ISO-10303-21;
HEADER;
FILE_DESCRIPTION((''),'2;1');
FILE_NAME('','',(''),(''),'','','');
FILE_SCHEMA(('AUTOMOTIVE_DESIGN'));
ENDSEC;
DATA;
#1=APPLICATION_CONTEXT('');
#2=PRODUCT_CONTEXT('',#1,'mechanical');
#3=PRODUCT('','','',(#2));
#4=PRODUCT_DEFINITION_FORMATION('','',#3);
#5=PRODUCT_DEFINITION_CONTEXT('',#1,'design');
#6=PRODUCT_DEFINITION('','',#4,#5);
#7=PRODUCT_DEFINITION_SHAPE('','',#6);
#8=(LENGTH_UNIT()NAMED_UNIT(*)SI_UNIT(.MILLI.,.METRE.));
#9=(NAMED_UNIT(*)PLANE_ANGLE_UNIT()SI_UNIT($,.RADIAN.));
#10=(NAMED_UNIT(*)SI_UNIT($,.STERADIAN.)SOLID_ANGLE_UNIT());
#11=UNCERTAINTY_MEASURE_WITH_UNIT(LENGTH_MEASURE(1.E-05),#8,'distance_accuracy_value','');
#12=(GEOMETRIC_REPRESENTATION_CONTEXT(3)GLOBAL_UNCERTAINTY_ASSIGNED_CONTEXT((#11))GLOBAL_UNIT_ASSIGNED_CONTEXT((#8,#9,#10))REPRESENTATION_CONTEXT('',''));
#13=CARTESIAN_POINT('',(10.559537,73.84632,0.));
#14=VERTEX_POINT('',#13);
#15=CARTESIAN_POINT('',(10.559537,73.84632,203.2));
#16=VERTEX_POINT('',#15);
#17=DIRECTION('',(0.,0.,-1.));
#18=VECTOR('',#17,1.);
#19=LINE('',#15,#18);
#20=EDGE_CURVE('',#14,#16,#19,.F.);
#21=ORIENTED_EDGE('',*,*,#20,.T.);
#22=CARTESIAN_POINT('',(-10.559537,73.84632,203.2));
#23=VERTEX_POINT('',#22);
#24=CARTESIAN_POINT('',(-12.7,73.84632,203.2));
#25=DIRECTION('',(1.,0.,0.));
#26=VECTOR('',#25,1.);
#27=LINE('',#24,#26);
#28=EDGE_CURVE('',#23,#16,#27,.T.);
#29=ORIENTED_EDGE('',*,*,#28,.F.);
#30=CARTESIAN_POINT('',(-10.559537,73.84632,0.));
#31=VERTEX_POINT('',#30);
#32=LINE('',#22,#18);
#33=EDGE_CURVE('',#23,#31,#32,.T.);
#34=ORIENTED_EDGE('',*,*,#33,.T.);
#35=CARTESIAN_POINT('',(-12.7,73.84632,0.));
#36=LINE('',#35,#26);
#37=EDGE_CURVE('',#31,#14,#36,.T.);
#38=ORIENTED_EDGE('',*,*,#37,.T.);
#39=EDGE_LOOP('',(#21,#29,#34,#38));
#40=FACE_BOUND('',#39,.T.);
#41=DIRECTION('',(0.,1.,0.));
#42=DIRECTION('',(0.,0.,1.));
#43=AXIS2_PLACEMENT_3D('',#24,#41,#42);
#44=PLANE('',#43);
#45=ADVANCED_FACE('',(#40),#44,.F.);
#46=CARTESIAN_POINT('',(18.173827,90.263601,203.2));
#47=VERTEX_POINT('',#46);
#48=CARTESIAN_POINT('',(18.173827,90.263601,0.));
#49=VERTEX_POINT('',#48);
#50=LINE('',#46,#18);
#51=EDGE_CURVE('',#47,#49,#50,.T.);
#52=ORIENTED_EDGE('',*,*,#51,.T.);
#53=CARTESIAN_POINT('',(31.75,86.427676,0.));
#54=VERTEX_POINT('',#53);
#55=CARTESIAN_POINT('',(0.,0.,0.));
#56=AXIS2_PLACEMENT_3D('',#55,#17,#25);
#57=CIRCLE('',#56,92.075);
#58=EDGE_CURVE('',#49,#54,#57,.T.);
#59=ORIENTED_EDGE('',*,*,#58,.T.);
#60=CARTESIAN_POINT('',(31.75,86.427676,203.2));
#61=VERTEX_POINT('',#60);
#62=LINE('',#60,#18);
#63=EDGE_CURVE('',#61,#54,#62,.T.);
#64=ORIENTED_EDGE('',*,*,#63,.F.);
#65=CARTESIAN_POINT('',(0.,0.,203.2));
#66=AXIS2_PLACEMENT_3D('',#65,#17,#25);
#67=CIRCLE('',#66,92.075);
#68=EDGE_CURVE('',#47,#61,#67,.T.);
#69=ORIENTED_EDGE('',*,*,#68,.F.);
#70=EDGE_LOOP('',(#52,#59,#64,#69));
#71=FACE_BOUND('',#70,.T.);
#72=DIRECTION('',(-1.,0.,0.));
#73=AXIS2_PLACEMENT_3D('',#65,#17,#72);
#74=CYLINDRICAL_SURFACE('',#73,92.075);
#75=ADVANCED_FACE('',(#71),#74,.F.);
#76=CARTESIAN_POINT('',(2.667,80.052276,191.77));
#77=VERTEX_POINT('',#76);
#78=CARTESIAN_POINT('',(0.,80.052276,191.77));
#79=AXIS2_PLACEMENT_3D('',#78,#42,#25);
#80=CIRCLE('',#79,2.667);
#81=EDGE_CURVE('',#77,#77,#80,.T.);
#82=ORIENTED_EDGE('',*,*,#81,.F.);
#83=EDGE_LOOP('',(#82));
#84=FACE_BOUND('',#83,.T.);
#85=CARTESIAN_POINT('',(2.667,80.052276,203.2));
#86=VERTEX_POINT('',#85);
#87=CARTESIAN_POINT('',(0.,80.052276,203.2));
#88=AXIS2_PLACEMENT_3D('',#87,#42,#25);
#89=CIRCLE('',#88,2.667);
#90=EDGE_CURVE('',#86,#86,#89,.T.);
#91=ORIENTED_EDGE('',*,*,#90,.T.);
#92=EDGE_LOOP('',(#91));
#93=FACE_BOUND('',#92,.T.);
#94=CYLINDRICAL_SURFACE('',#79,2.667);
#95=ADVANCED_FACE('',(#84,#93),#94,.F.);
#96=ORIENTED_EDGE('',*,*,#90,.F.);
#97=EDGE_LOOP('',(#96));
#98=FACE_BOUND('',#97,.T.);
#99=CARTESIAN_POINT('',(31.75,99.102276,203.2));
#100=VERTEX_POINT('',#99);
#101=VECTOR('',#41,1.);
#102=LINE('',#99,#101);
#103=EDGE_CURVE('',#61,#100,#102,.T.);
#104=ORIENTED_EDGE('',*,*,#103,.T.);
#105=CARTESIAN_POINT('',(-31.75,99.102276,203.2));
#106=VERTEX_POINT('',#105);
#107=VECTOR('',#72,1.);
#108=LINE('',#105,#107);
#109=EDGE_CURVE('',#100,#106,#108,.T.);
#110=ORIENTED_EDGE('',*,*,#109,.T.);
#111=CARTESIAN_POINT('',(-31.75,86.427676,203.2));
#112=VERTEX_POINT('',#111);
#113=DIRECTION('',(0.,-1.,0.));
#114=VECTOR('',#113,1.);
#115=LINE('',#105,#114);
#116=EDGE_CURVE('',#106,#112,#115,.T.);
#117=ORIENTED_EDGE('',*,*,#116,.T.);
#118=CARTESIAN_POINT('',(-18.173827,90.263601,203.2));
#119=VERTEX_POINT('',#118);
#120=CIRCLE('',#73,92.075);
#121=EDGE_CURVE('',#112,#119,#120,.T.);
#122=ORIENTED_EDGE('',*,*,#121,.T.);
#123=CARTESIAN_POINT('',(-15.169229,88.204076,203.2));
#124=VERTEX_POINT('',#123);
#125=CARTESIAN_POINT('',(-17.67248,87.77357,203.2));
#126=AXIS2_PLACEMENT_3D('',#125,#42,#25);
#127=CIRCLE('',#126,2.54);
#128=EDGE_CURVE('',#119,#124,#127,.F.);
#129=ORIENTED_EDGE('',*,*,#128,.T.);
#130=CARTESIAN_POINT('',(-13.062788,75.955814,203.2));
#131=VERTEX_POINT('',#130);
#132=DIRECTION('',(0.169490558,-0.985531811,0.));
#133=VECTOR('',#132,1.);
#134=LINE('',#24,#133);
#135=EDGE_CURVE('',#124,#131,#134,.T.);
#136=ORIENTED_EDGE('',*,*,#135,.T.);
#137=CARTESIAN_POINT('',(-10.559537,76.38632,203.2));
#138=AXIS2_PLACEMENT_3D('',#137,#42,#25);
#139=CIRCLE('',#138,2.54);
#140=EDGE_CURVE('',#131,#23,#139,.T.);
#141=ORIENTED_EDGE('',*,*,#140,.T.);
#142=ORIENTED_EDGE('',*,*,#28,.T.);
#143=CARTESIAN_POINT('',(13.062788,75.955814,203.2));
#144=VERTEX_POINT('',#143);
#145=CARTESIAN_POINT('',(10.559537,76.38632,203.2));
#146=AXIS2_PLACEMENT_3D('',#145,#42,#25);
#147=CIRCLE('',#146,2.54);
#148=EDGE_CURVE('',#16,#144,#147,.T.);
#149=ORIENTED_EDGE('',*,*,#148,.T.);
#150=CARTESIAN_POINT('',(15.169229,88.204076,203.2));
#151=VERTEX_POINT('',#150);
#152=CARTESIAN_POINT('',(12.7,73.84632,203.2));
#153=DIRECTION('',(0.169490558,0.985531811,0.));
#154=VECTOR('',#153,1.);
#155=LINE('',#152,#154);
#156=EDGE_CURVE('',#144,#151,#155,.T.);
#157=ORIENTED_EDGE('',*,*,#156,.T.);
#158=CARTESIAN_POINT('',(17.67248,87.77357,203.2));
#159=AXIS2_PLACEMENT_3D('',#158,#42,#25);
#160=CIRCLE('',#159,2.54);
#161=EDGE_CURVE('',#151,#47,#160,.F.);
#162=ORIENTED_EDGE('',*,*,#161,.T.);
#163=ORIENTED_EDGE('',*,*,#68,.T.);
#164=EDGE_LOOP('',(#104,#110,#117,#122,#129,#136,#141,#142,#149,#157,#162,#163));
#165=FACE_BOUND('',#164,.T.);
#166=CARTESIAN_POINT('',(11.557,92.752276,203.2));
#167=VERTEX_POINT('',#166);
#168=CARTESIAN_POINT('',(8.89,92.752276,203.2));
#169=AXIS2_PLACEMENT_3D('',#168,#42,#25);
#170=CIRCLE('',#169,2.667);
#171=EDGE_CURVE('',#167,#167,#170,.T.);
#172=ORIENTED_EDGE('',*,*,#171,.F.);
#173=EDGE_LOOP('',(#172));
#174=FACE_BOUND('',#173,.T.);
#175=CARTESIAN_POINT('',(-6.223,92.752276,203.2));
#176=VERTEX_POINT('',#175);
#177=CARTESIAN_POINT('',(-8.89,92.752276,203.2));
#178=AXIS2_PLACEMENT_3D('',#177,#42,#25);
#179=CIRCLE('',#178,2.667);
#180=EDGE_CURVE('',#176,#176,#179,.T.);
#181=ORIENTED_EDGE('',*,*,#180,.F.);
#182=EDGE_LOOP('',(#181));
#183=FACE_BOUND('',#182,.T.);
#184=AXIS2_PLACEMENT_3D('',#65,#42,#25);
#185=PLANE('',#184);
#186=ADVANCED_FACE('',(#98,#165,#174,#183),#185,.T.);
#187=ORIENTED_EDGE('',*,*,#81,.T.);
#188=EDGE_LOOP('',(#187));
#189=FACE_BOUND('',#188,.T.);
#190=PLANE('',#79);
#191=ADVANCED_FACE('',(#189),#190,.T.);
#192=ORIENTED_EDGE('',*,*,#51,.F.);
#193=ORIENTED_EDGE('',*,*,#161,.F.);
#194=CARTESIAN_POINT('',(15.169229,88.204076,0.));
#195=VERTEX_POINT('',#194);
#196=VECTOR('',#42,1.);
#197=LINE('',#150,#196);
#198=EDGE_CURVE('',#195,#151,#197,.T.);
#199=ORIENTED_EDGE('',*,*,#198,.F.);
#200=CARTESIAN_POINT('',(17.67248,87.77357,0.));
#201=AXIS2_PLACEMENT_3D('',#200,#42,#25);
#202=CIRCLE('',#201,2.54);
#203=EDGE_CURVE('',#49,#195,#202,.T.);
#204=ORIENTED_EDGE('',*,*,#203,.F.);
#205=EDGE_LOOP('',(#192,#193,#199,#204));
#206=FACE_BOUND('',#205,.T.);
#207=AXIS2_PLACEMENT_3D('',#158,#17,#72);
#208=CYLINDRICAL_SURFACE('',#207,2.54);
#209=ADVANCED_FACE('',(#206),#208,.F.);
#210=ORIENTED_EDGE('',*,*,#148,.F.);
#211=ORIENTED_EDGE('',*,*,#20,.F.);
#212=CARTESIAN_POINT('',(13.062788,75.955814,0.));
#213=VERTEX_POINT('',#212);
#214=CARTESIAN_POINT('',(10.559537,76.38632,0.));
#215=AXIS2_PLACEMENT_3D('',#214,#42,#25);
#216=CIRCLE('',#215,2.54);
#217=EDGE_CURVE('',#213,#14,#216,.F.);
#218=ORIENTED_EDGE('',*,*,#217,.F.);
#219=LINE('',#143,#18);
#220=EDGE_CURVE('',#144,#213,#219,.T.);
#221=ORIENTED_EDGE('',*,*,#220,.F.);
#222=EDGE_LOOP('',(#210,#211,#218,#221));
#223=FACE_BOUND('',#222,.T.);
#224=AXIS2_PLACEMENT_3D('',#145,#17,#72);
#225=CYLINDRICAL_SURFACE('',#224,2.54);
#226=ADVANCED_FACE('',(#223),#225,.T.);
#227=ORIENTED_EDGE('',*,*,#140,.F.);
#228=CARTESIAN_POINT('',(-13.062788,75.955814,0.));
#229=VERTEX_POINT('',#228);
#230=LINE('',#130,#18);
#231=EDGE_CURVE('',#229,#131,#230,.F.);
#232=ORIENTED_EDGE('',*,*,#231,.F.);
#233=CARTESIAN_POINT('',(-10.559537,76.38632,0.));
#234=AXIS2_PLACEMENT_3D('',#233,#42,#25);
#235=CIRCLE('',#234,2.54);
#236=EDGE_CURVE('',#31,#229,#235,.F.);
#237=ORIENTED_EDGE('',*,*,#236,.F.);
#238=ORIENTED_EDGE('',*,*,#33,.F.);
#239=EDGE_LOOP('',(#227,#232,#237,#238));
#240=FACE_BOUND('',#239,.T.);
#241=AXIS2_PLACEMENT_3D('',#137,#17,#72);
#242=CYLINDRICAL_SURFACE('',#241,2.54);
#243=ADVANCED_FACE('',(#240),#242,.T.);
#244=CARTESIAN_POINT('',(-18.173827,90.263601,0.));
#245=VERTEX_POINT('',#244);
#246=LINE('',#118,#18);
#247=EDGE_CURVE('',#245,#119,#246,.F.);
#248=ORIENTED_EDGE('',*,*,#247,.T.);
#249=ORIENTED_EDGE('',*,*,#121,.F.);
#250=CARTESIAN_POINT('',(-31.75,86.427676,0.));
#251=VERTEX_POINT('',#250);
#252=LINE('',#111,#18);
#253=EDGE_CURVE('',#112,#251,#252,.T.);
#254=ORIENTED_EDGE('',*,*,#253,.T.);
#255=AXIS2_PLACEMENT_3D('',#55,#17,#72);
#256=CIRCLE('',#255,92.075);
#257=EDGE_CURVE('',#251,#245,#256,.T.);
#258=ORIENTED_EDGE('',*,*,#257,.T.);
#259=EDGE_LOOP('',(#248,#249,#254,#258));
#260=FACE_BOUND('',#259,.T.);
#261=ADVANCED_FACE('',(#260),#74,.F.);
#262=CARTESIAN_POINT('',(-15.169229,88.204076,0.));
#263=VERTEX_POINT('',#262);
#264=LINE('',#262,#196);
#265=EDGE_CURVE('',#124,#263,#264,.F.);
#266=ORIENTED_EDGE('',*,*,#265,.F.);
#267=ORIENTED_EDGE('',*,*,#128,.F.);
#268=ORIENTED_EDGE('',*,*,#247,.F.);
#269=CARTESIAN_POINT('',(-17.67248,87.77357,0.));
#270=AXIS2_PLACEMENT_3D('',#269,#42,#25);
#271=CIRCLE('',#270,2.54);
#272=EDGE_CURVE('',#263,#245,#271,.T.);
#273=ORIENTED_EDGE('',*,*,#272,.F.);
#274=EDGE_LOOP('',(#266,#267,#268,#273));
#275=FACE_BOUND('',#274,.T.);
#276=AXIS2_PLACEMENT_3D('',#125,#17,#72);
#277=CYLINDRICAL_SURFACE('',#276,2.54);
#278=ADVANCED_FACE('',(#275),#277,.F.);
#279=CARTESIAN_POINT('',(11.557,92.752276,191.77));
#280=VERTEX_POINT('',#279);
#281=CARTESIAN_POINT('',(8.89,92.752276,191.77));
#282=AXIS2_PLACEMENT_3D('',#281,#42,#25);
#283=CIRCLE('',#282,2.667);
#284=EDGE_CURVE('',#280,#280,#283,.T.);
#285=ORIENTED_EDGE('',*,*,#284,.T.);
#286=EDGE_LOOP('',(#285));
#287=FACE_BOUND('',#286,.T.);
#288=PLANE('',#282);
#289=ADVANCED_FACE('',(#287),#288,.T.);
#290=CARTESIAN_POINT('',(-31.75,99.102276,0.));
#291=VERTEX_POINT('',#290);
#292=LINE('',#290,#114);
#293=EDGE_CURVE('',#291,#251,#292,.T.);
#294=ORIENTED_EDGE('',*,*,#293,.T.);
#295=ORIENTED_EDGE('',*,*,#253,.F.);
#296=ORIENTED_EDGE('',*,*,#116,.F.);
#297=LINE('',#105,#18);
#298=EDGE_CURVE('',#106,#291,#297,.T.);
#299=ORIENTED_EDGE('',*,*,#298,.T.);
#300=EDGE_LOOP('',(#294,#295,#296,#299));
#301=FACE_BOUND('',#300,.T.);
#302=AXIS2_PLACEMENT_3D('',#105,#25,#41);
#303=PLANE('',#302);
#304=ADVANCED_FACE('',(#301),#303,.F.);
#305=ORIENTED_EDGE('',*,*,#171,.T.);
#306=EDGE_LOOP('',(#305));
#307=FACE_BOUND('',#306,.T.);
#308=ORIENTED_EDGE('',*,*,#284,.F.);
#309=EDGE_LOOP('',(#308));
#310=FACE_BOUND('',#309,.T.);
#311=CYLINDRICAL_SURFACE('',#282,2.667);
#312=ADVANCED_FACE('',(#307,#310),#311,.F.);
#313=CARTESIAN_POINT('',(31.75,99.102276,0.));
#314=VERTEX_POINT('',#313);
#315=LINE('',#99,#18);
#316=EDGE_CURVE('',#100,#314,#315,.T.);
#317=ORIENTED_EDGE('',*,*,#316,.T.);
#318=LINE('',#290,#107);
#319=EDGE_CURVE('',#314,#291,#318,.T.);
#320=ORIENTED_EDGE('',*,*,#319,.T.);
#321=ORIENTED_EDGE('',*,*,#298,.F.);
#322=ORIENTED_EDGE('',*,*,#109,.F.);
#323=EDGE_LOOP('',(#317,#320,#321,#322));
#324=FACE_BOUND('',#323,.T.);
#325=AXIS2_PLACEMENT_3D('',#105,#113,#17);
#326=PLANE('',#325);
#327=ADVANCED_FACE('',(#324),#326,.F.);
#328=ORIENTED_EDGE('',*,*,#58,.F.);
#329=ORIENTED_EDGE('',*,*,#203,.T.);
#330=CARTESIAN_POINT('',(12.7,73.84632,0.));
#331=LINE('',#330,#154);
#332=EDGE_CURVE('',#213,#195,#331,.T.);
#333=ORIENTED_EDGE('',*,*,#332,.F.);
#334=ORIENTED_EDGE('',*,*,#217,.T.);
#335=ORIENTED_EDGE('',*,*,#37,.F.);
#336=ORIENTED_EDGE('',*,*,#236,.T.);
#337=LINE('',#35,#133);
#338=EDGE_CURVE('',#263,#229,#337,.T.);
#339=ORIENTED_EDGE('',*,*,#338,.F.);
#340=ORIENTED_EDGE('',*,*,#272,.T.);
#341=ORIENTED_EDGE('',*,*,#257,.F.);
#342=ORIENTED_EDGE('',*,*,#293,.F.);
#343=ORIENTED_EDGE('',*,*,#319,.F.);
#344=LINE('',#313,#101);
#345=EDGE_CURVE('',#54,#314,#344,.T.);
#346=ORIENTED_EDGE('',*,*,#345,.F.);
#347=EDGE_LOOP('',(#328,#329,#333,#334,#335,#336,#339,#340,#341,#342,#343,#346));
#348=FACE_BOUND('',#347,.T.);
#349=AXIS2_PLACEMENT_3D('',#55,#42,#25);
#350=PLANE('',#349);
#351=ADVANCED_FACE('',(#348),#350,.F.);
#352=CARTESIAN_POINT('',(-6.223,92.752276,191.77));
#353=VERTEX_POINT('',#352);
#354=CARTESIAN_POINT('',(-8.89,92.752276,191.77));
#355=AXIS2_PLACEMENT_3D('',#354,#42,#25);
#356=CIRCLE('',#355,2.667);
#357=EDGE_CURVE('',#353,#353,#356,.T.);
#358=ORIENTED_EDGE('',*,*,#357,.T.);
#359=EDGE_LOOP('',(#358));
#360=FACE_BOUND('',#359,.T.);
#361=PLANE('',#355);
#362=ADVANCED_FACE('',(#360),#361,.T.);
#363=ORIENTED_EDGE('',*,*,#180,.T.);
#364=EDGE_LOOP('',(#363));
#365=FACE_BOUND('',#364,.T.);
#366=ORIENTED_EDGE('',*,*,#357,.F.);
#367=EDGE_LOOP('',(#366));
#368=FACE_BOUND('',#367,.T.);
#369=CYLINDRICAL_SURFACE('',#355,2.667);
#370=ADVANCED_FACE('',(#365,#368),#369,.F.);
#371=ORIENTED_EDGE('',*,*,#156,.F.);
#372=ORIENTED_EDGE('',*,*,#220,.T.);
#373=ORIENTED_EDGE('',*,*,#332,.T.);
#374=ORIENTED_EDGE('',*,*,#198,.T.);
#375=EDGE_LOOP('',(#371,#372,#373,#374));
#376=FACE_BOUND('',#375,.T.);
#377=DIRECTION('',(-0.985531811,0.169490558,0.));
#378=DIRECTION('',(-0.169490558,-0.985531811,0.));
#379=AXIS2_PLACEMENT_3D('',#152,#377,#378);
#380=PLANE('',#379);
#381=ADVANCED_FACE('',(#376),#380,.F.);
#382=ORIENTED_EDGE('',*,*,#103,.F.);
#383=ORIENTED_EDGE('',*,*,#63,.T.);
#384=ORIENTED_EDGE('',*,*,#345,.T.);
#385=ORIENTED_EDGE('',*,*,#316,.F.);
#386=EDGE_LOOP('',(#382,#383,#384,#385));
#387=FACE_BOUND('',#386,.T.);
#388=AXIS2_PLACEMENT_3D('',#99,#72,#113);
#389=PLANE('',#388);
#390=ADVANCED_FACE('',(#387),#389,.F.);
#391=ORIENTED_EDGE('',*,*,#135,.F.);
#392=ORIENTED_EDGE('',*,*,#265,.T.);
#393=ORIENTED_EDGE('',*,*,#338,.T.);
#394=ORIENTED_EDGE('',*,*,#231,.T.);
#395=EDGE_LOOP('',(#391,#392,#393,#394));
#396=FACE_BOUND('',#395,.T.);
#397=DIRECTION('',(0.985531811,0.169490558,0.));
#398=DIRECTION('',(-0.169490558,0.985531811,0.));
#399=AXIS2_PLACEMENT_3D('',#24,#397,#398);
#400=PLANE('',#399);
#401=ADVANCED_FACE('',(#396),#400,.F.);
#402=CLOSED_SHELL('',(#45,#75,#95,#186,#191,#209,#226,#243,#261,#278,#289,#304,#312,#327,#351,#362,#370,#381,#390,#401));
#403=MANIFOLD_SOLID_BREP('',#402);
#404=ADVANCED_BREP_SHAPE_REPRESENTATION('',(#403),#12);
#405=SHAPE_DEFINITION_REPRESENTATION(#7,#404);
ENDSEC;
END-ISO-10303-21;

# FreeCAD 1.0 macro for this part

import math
import FreeCAD as App
import Part
import Sketcher
from FreeCAD import Vector
Q = App.Units.Quantity


def edges_at(feature, points):
    """Names of the edges that pass closest to the given points."""
    edges = feature.Shape.Edges
    near = lambda p: min(range(len(edges)), key=lambda i: edges[i].distToShape(Part.Vertex(*p))[0])
    return sorted({f"Edge{near(p) + 1}" for p in points})

doc = App.newDocument("Part")
body = doc.addObject("PartDesign::Body", "Body")

# Sketch on XY plane
sketch1 = body.newObject("Sketcher::SketchObject", "Sketch")
sketch1.AttachmentSupport = (doc.getObject("XY_Plane"), [""])
sketch1.MapMode = "FlatFace"
sketch1.addGeometry([
    Part.LineSegment(Vector(-12.7, 73.84632, 0), Vector(12.7, 73.84632, 0)),  # 0
    Part.LineSegment(Vector(12.7, 73.84632, 0), Vector(15.605843, 90.742842, 0)),  # 1
    Part.ArcOfCircle(Part.Circle(Vector(0, 0, 0), Vector(0, 0, 1), 92.075), math.radians(69.828729), math.radians(80.2418)),  # 2
    Part.LineSegment(Vector(31.75, 86.427676, 0), Vector(31.75, 99.102276, 0)),  # 3
    Part.LineSegment(Vector(31.75, 99.102276, 0), Vector(-31.75, 99.102276, 0)),  # 4
    Part.LineSegment(Vector(-31.75, 99.102276, 0), Vector(-31.75, 86.427676, 0)),  # 5
    Part.ArcOfCircle(Part.Circle(Vector(0, 0, 0), Vector(0, 0, 1), 92.075), math.radians(99.7582), math.radians(110.171271)),  # 6
    Part.LineSegment(Vector(-15.605843, 90.742842, 0), Vector(-12.7, 73.84632, 0)),  # 7
], False)
sketch1.addConstraint([
    Sketcher.Constraint("Coincident", 0, 2, 1, 1),
    Sketcher.Constraint("Coincident", 1, 2, 2, 2),
    Sketcher.Constraint("Coincident", 2, 1, 3, 1),
    Sketcher.Constraint("Coincident", 3, 2, 4, 1),
    Sketcher.Constraint("Coincident", 4, 2, 5, 1),
    Sketcher.Constraint("Coincident", 5, 2, 6, 2),
    Sketcher.Constraint("Coincident", 6, 1, 7, 1),
    Sketcher.Constraint("Coincident", 7, 2, 0, 1),
    Sketcher.Constraint("Horizontal", 0),
    Sketcher.Constraint("Vertical", 3),
    Sketcher.Constraint("Horizontal", 4),
    Sketcher.Constraint("Vertical", 5),
    Sketcher.Constraint("Coincident", 2, 3, -1, 1),
    Sketcher.Constraint("Coincident", 6, 3, -1, 1),
    Sketcher.Constraint("Equal", 2, 6),
    Sketcher.Constraint("Horizontal", 2, 1, 5, 2),
    Sketcher.Constraint("Horizontal", 1, 2, 6, 1),
    Sketcher.Constraint("Equal", 1, 7),
    Sketcher.Constraint("DistanceX", 0, 1, 0, 2, Q("1 in")),
    Sketcher.Constraint("DistanceX", 4, 2, 4, 1, Q("2.5 in")),
    Sketcher.Constraint("Radius", 2, Q("3.625 in")),
    Sketcher.Constraint("DistanceY", 3, 1, 3, 2, Q("0.499 in")),
    Sketcher.Constraint("DistanceY", -1, 1, 0, 2, 73.84632),
    Sketcher.Constraint("DistanceY", -1, 1, 1, 2, 90.742842),
])
pad1 = body.newObject("PartDesign::Pad", "Pad")
pad1.Profile = sketch1
pad1.Length = Q("8 in")
doc.recompute()

fillet = body.newObject("PartDesign::Fillet", "Fillet")
fillet.Base = (pad1, edges_at(pad1, [
    (12.7, 73.846, 101.6),
    (-12.7, 73.846, 101.6),
    (-15.606, 90.743, 101.6),
    (15.606, 90.743, 101.6),
]))
fillet.Radius = Q("0.1 in")

# Sketch on XY plane
sketch2 = body.newObject("Sketcher::SketchObject", "Sketch001")
sketch2.AttachmentSupport = (doc.getObject("XY_Plane"), [""])
sketch2.MapMode = "FlatFace"
sketch2.AttachmentOffset = App.Placement(Vector(0, 0, 8 * 25.4), App.Rotation())
sketch2.addGeometry([
    Part.Circle(Vector(-8.89, 92.752276, 0), Vector(0, 0, 1), 2.667),
    Part.Circle(Vector(8.89, 92.752276, 0), Vector(0, 0, 1), 2.667),
    Part.Circle(Vector(0, 80.052276, 0), Vector(0, 0, 1), 2.667),
], False)
sketch2.addConstraint([
    Sketcher.Constraint("Equal", 0, 1),
    Sketcher.Constraint("Equal", 1, 2),
    Sketcher.Constraint("Symmetric", 0, 3, 1, 3, -2),
    Sketcher.Constraint("PointOnObject", 2, 3, -2),
    Sketcher.Constraint("Diameter", 0, Q("0.21 in")),
    Sketcher.Constraint("DistanceX", 0, 3, 1, 3, Q("0.7 in")),
    Sketcher.Constraint("DistanceY", 2, 3, 0, 3, Q("0.5 in")),
    Sketcher.Constraint("DistanceY", -1, 1, 0, 3, 92.752276),
])
pocket1 = body.newObject("PartDesign::Pocket", "Pocket")
pocket1.Profile = sketch2
pocket1.Length = Q("0.45 in")

doc.recompute()
